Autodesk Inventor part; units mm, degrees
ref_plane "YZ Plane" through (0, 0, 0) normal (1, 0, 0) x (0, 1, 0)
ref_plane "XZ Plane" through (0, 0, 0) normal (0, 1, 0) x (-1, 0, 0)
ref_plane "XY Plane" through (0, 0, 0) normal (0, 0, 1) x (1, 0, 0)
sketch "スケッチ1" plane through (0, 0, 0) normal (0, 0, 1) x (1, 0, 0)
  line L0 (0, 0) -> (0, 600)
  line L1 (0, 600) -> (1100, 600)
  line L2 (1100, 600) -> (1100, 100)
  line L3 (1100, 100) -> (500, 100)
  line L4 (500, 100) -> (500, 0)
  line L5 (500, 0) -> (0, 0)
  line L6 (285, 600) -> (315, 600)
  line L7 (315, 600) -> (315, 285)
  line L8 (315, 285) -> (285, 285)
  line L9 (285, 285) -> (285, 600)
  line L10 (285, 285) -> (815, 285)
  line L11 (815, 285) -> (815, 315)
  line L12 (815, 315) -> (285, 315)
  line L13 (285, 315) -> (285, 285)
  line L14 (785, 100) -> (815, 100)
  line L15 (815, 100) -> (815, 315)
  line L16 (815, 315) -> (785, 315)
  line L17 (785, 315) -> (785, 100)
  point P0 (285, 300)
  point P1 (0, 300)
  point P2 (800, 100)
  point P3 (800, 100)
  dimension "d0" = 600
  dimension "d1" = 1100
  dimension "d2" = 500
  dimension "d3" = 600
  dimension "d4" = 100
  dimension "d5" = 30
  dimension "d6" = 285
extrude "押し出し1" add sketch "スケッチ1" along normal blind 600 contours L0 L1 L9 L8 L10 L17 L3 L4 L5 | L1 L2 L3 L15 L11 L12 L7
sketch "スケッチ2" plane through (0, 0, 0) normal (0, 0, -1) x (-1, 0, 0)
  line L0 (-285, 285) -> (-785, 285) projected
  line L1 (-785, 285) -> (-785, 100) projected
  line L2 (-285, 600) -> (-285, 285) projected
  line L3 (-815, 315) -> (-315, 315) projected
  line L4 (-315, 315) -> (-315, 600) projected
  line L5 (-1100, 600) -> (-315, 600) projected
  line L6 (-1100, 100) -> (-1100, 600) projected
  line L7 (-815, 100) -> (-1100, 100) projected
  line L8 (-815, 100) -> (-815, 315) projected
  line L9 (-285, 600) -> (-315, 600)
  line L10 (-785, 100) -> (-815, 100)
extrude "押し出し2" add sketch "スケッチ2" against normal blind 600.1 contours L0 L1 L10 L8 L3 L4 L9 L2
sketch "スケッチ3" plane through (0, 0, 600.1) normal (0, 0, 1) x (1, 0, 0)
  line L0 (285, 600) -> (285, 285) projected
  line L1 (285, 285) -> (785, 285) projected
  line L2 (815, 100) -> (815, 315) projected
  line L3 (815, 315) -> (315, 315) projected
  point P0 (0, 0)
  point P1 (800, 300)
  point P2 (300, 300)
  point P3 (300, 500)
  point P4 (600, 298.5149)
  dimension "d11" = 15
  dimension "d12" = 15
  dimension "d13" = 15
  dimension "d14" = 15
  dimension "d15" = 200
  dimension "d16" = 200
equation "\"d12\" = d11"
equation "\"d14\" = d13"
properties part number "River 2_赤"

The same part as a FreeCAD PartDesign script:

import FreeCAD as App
import Part
import Sketcher
from FreeCAD import Vector

doc = App.newDocument("Part")
body = doc.addObject("PartDesign::Body", "Body")
body.AllowCompound = True

# Sketch on XY plane
sketch1 = body.newObject("Sketcher::SketchObject", "Sketch")
sketch1.AttachmentSupport = (doc.getObject("XY_Plane"), [""])
sketch1.MapMode = "FlatFace"
sketch1.addGeometry([
    Part.LineSegment(Vector(0, 600, 0), Vector(0, 0, 0)),  # 0
    Part.LineSegment(Vector(0, 0, 0), Vector(500, 0, 0)),  # 1
    Part.LineSegment(Vector(500, 0, 0), Vector(500, 100, 0)),  # 2
    Part.LineSegment(Vector(500, 100, 0), Vector(785, 100, 0)),  # 3
    Part.LineSegment(Vector(785, 100, 0), Vector(785, 285, 0)),  # 4
    Part.LineSegment(Vector(785, 285, 0), Vector(285, 285, 0)),  # 5
    Part.LineSegment(Vector(285, 285, 0), Vector(285, 600, 0)),  # 6
    Part.LineSegment(Vector(285, 600, 0), Vector(0, 600, 0)),  # 7
    Part.LineSegment(Vector(1100, 600, 0), Vector(315, 600, 0)),  # 8
    Part.LineSegment(Vector(315, 600, 0), Vector(315, 315, 0)),  # 9
    Part.LineSegment(Vector(315, 315, 0), Vector(815, 315, 0)),  # 10
    Part.LineSegment(Vector(815, 315, 0), Vector(815, 100, 0)),  # 11
    Part.LineSegment(Vector(815, 100, 0), Vector(1100, 100, 0)),  # 12
    Part.LineSegment(Vector(1100, 100, 0), Vector(1100, 600, 0)),  # 13
], False)
sketch1.addConstraint([
    Sketcher.Constraint("Coincident", 0, 2, 1, 1),
    Sketcher.Constraint("Coincident", 1, 2, 2, 1),
    Sketcher.Constraint("Coincident", 2, 2, 3, 1),
    Sketcher.Constraint("Coincident", 3, 2, 4, 1),
    Sketcher.Constraint("Coincident", 4, 2, 5, 1),
    Sketcher.Constraint("Coincident", 5, 2, 6, 1),
    Sketcher.Constraint("Coincident", 6, 2, 7, 1),
    Sketcher.Constraint("Coincident", 7, 2, 0, 1),
    Sketcher.Constraint("Coincident", 8, 2, 9, 1),
    Sketcher.Constraint("Coincident", 9, 2, 10, 1),
    Sketcher.Constraint("Coincident", 10, 2, 11, 1),
    Sketcher.Constraint("Coincident", 11, 2, 12, 1),
    Sketcher.Constraint("Coincident", 12, 2, 13, 1),
    Sketcher.Constraint("Coincident", 13, 2, 8, 1),
    Sketcher.Constraint("Vertical", 0),
    Sketcher.Constraint("Horizontal", 1),
    Sketcher.Constraint("Vertical", 2),
    Sketcher.Constraint("Horizontal", 3),
    Sketcher.Constraint("Vertical", 4),
    Sketcher.Constraint("Horizontal", 5),
    Sketcher.Constraint("Vertical", 6),
    Sketcher.Constraint("Horizontal", 7),
    Sketcher.Constraint("Horizontal", 8),
    Sketcher.Constraint("Vertical", 9),
    Sketcher.Constraint("Horizontal", 10),
    Sketcher.Constraint("Vertical", 11),
    Sketcher.Constraint("Horizontal", 12),
    Sketcher.Constraint("Vertical", 13),
    Sketcher.Constraint("Coincident", 0, 2, -1, 1),
    Sketcher.Constraint("Horizontal", 7, 2, 8, 2),
    Sketcher.Constraint("Horizontal", 3, 2, 11, 2),
    Sketcher.Constraint("Equal", 1, 5),
    Sketcher.Constraint("Equal", 5, 10),
    Sketcher.Constraint("Equal", 7, 12),
    Sketcher.Constraint("Equal", 12, 9),
    Sketcher.Constraint("Equal", 10, 13),
    Sketcher.Constraint("DistanceX", 1, 1, 1, 2, 500.0),
    Sketcher.Constraint("DistanceX", 3, 1, 3, 2, 285.0),
    Sketcher.Constraint("DistanceY", 0, 2, 0, 1, 600.0),
    Sketcher.Constraint("DistanceY", -1, 1, 4, 2, 285.0),
    Sketcher.Constraint("DistanceX", -1, 1, 12, 2, 1100.0),
])
pad1 = body.newObject("PartDesign::Pad", "Pad")
pad1.Profile = sketch1
pad1.Length = 600

# Sketch on XY plane
sketch2 = body.newObject("Sketcher::SketchObject", "Sketch001")
sketch2.AttachmentSupport = (doc.getObject("XY_Plane"), [""])
sketch2.MapMode = "FlatFace"
sketch2.addGeometry([
    Part.LineSegment(Vector(785, 285, 0), Vector(285, 285, 0)),  # 0
    Part.LineSegment(Vector(285, 285, 0), Vector(285, 600, 0)),  # 1
    Part.LineSegment(Vector(285, 600, 0), Vector(315, 600, 0)),  # 2
    Part.LineSegment(Vector(315, 600, 0), Vector(315, 315, 0)),  # 3
    Part.LineSegment(Vector(315, 315, 0), Vector(815, 315, 0)),  # 4
    Part.LineSegment(Vector(815, 315, 0), Vector(815, 100, 0)),  # 5
    Part.LineSegment(Vector(815, 100, 0), Vector(785, 100, 0)),  # 6
    Part.LineSegment(Vector(785, 100, 0), Vector(785, 285, 0)),  # 7
], False)
sketch2.addConstraint([
    Sketcher.Constraint("Coincident", 0, 2, 1, 1),
    Sketcher.Constraint("Coincident", 1, 2, 2, 1),
    Sketcher.Constraint("Coincident", 2, 2, 3, 1),
    Sketcher.Constraint("Coincident", 3, 2, 4, 1),
    Sketcher.Constraint("Coincident", 4, 2, 5, 1),
    Sketcher.Constraint("Coincident", 5, 2, 6, 1),
    Sketcher.Constraint("Coincident", 6, 2, 7, 1),
    Sketcher.Constraint("Coincident", 7, 2, 0, 1),
    Sketcher.Constraint("Horizontal", 0),
    Sketcher.Constraint("Vertical", 1),
    Sketcher.Constraint("Horizontal", 2),
    Sketcher.Constraint("Vertical", 3),
    Sketcher.Constraint("Horizontal", 4),
    Sketcher.Constraint("Vertical", 5),
    Sketcher.Constraint("Horizontal", 6),
    Sketcher.Constraint("Vertical", 7),
    Sketcher.Constraint("Equal", 0, 4),
    Sketcher.Constraint("DistanceX", 0, 2, 0, 1, 500.0),
    Sketcher.Constraint("DistanceX", 2, 1, 2, 2, 30.0),
    Sketcher.Constraint("DistanceY", 1, 1, 1, 2, 315.0),
    Sketcher.Constraint("DistanceY", 3, 2, 3, 1, 285.0),
    Sketcher.Constraint("DistanceY", 5, 2, 5, 1, 215.0),
    Sketcher.Constraint("DistanceX", -1, 1, 0, 2, 285.0),
    Sketcher.Constraint("DistanceY", -1, 1, 0, 2, 285.0),
])
pad2 = body.newObject("PartDesign::Pad", "Pad001")
pad2.Profile = sketch2
pad2.Length = 600.1

doc.recompute()
